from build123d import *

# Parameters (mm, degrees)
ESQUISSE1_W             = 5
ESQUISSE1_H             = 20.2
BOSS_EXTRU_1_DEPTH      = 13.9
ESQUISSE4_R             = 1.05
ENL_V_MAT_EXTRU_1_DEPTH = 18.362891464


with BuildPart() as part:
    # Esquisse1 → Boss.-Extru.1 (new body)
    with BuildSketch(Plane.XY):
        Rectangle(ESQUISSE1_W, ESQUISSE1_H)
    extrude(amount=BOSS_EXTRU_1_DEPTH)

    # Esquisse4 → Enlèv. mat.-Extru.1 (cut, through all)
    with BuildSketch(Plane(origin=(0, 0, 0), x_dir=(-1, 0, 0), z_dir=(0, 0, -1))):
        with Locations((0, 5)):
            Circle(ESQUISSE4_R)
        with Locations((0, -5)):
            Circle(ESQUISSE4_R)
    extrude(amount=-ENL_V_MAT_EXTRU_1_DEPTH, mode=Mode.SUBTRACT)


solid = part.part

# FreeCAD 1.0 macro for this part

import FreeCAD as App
import Part
import Sketcher
from FreeCAD import Vector
Q = App.Units.Quantity

doc = App.newDocument("Part")
body = doc.addObject("PartDesign::Body", "Body")

sketch1 = body.newObject("Sketcher::SketchObject", "Sketch")
sketch1.AttachmentSupport = (doc.getObject("XY_Plane"), [""])
sketch1.MapMode = "FlatFace"
sketch1.addGeometry(Part.LineSegment(Vector(-2, 10, 0), Vector(-2, -10, 0)), False)
sketch1.addGeometry(Part.LineSegment(Vector(-2, -10, 0), Vector(2, -10, 0)), False)
sketch1.addGeometry(Part.LineSegment(Vector(2, -10, 0), Vector(2, 10, 0)), False)
sketch1.addGeometry(Part.LineSegment(Vector(2, 10, 0), Vector(-2, 10, 0)), False)
sketch1.addConstraint(Sketcher.Constraint("Coincident", 0, 2, 1, 1))
sketch1.addConstraint(Sketcher.Constraint("Coincident", 1, 2, 2, 1))
sketch1.addConstraint(Sketcher.Constraint("Coincident", 2, 2, 3, 1))
sketch1.addConstraint(Sketcher.Constraint("Coincident", 3, 2, 0, 1))
sketch1.addConstraint(Sketcher.Constraint("Vertical", 0))
sketch1.addConstraint(Sketcher.Constraint("Horizontal", 1))
sketch1.addConstraint(Sketcher.Constraint("Vertical", 2))
sketch1.addConstraint(Sketcher.Constraint("Horizontal", 3))
sketch1.addConstraint(Sketcher.Constraint("Symmetric", 0, 2, 2, 2, -1, 1))
sketch1.addConstraint(Sketcher.Constraint("DistanceX", 1, 1, 1, 2, Q("5 mm")))
sketch1.addConstraint(Sketcher.Constraint("DistanceY", 0, 2, 0, 1, Q("20.2 mm")))
pad1 = body.newObject("PartDesign::Pad", "Pad")
pad1.Profile = sketch1
pad1.Length = 13.9

sketch2 = body.newObject("Sketcher::SketchObject", "Sketch001")
sketch2.AttachmentSupport = (doc.getObject("XY_Plane"), [""])
sketch2.MapMode = "FlatFace"
sketch2.addGeometry(Part.Circle(Vector(0, 5, 0), Vector(0, 0, 1), 1.1), False)
sketch2.addGeometry(Part.Circle(Vector(0, -5, 0), Vector(0, 0, 1), 1.1), False)
sketch2.addConstraint(Sketcher.Constraint("Equal", 0, 1))
sketch2.addConstraint(Sketcher.Constraint("Symmetric", 0, 3, 1, 3, -1, 1))
sketch2.addConstraint(Sketcher.Constraint("PointOnObject", 0, 3, -2))
sketch2.addConstraint(Sketcher.Constraint("Diameter", 0, Q("2.1 mm")))
sketch2.addConstraint(Sketcher.Constraint("DistanceY", -1, 1, 0, 3, Q("5 mm")))
pocket1 = body.newObject("PartDesign::Pocket", "Pocket")
pocket1.Profile = sketch2
pocket1.Type = "ThroughAll"
pocket1.Reversed = True

doc.recompute()
